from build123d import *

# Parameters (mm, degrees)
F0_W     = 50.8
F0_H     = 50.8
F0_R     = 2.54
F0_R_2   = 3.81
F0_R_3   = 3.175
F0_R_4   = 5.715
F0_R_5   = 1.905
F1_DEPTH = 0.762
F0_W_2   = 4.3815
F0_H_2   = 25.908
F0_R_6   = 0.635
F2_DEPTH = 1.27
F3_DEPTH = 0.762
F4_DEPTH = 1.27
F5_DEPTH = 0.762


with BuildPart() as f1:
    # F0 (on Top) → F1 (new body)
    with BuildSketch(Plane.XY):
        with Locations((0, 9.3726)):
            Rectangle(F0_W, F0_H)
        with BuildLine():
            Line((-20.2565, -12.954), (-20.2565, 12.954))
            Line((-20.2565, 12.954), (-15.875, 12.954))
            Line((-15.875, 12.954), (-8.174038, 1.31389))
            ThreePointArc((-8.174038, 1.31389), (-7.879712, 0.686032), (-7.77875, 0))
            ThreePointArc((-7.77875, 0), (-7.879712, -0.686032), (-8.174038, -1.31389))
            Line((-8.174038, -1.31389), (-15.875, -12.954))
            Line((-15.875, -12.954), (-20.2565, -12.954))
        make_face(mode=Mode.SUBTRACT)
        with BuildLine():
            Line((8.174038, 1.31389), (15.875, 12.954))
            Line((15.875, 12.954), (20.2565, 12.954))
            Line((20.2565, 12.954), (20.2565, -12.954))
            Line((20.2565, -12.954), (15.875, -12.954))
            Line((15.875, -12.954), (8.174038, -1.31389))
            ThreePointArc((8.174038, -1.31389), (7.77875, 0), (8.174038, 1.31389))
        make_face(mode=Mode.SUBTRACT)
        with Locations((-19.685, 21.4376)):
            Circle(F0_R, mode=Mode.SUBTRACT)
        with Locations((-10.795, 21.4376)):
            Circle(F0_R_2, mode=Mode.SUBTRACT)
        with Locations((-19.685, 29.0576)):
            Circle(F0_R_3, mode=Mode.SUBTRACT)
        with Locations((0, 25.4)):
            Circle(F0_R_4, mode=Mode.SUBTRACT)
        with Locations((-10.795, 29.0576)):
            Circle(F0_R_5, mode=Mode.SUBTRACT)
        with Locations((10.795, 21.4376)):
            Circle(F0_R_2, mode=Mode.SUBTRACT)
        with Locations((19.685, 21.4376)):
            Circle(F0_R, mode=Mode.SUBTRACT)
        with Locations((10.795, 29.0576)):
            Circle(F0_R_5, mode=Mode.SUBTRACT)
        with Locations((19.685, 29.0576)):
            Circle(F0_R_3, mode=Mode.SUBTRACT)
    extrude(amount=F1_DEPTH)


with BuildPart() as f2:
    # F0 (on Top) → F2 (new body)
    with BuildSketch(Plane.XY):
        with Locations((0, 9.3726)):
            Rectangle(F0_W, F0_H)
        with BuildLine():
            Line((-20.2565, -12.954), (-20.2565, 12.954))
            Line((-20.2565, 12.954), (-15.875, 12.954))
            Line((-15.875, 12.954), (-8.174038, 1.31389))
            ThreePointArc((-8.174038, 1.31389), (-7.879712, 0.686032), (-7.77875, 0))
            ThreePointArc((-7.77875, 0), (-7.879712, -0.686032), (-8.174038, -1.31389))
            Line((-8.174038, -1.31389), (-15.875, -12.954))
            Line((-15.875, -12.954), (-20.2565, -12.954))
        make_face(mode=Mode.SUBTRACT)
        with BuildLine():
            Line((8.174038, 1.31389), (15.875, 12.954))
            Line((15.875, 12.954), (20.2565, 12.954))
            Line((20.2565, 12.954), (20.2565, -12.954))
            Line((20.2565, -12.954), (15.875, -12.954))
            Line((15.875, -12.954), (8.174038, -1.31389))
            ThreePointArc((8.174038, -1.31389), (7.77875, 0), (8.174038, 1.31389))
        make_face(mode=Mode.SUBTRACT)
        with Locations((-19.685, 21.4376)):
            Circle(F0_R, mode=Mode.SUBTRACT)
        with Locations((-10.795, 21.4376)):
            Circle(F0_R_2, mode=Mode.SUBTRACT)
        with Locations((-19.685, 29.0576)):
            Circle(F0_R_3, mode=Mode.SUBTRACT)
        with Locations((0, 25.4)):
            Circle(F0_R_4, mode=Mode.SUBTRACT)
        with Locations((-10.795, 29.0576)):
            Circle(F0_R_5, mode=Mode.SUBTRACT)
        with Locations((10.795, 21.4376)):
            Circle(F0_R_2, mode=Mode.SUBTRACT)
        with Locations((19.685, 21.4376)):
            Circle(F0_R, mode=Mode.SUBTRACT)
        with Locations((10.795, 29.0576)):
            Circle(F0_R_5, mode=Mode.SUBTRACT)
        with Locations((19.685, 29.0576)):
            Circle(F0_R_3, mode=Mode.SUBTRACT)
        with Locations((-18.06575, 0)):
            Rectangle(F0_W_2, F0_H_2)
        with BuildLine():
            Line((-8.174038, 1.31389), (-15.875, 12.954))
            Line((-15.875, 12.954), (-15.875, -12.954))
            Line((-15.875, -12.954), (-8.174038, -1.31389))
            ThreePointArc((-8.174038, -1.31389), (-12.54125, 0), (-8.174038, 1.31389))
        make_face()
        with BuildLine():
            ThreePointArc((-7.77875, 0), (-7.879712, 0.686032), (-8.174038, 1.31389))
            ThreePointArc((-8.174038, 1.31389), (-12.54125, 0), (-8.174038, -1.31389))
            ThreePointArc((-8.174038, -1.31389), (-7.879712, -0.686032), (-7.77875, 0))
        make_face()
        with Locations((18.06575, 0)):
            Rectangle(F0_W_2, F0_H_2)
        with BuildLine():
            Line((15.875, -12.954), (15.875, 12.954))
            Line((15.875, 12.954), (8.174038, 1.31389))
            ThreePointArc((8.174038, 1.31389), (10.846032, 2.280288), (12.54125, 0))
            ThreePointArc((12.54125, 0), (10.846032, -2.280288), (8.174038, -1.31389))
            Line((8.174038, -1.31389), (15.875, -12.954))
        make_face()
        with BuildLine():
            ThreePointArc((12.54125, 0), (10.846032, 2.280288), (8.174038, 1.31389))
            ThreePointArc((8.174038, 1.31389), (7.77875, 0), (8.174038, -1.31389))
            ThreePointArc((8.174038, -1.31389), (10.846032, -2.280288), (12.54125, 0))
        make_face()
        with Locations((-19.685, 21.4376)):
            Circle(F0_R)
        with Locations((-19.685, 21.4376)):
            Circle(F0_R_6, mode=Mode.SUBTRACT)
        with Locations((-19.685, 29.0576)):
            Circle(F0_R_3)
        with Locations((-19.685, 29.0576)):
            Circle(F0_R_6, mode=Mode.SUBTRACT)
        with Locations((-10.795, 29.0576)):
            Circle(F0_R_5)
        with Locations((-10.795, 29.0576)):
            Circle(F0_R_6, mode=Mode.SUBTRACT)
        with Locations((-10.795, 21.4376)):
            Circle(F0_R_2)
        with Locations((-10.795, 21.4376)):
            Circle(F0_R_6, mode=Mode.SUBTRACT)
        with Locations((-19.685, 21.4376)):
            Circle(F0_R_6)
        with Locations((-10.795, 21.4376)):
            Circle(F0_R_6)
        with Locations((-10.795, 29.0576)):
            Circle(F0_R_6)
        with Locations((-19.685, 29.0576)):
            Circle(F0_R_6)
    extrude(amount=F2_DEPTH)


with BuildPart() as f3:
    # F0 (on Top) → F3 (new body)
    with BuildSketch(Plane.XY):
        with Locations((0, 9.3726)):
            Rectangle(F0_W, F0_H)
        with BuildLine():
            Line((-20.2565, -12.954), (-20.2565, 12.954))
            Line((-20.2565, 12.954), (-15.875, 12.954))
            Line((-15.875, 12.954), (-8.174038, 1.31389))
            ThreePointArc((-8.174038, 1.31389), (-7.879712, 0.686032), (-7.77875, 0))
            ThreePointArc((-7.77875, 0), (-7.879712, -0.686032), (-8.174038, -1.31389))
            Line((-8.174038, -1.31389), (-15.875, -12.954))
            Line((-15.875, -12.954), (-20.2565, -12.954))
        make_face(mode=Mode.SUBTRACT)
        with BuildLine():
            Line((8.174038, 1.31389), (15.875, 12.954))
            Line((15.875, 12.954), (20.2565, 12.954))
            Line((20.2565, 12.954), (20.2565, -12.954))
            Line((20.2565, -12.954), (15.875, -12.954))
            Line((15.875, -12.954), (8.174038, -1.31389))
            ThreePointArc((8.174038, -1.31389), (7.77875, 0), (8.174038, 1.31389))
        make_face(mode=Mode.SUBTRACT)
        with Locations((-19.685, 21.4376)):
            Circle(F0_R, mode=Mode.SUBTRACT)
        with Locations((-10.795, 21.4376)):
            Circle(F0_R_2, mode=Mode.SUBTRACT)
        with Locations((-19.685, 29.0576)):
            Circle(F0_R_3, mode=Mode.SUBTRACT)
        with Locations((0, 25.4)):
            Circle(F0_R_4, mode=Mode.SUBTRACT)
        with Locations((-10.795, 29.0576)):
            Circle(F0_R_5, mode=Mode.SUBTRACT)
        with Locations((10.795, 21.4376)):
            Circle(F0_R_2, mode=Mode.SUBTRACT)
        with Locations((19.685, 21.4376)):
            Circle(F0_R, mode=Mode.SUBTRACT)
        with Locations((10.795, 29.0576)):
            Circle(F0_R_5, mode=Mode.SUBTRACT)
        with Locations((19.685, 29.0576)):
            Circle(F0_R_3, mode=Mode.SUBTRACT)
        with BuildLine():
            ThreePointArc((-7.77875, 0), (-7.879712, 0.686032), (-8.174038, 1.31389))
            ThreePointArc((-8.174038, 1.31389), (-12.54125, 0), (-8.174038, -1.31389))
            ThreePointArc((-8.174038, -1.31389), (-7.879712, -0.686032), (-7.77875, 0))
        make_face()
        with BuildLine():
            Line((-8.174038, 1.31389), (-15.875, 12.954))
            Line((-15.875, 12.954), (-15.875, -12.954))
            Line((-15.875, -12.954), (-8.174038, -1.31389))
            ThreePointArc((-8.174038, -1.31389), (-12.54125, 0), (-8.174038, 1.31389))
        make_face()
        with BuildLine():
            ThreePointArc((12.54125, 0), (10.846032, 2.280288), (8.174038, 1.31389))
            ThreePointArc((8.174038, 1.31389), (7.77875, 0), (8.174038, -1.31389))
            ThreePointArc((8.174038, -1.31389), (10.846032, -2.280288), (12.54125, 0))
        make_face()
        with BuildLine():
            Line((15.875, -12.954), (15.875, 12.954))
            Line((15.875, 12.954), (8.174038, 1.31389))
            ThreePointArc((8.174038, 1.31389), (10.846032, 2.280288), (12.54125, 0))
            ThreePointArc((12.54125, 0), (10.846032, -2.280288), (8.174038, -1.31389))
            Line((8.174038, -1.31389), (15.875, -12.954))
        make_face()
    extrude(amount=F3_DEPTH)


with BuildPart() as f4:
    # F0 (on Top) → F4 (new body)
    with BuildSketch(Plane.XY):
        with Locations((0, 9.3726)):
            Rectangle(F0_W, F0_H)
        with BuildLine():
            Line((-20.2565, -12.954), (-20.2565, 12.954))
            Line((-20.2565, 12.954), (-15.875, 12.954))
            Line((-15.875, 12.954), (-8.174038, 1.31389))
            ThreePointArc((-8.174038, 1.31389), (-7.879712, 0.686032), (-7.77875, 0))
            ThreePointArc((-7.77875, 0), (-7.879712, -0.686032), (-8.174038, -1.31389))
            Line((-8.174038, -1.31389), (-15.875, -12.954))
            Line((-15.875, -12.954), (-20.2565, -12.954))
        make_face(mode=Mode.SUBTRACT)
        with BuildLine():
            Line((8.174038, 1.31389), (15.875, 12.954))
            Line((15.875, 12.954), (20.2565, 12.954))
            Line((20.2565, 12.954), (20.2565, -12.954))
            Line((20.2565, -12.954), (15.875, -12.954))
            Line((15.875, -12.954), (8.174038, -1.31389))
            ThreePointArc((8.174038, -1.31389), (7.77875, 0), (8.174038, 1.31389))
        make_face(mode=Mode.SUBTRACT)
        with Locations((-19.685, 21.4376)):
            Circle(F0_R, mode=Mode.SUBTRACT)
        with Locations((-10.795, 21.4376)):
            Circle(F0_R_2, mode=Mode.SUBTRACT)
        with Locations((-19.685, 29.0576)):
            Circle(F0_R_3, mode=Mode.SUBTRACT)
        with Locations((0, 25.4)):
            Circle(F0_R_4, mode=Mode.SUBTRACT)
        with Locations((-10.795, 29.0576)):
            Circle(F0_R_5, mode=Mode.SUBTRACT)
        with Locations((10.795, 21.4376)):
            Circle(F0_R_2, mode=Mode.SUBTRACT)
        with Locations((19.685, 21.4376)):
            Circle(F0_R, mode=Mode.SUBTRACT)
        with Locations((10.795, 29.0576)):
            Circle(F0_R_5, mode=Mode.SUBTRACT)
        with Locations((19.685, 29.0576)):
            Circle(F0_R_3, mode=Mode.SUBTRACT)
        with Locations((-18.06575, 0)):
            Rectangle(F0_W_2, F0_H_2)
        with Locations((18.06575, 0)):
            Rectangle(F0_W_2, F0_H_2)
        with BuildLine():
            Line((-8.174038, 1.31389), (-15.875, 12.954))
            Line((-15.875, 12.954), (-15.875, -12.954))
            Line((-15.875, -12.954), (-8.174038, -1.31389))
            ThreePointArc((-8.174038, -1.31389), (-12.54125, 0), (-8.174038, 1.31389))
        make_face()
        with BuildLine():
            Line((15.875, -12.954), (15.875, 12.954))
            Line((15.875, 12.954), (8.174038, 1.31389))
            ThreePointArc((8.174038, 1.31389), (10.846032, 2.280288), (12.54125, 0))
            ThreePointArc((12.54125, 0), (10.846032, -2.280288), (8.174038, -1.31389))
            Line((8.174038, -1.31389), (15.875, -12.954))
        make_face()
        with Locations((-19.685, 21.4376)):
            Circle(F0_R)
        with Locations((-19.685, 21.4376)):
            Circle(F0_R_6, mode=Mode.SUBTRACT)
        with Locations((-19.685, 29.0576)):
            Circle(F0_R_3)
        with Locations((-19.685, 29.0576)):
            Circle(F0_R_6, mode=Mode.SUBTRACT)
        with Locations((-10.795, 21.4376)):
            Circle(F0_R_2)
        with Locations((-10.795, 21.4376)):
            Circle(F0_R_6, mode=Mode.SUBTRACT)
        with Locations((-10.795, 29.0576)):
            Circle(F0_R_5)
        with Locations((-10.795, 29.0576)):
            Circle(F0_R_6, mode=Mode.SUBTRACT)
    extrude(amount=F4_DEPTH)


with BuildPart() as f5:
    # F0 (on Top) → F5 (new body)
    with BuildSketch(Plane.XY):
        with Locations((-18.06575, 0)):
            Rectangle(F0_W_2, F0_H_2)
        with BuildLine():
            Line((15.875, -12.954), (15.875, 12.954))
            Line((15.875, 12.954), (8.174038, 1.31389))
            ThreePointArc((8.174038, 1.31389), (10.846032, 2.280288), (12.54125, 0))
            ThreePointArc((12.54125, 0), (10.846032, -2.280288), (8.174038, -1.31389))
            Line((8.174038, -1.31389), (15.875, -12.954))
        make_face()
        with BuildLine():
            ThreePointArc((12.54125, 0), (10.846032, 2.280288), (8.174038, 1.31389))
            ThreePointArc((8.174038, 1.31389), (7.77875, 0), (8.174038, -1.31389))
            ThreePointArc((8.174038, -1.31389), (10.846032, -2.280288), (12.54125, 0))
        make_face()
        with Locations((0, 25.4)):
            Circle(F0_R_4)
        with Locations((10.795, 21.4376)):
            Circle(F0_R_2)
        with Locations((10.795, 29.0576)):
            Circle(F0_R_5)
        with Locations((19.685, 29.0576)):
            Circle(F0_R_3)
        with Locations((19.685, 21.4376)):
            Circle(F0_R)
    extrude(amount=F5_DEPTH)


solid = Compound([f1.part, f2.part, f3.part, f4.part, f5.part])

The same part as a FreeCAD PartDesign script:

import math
import FreeCAD as App
import Part
import Sketcher
from FreeCAD import Vector
Q = App.Units.Quantity

doc = App.newDocument("Part")
body = doc.addObject("PartDesign::Body", "Body")

# Sketch on XY plane
sketch1 = body.newObject("Sketcher::SketchObject", "Sketch")
sketch1.AttachmentSupport = (doc.getObject("XY_Plane"), [""])
sketch1.MapMode = "FlatFace"
sketch1.addGeometry(Part.LineSegment(Vector(-25.4, 34.8, 0), Vector(-25.4, -16, 0)), False)
sketch1.addGeometry(Part.LineSegment(Vector(-25.4, -16, 0), Vector(25.4, -16, 0)), False)
sketch1.addGeometry(Part.LineSegment(Vector(25.4, -16, 0), Vector(25.4, 34.8, 0)), False)
sketch1.addGeometry(Part.LineSegment(Vector(25.4, 34.8, 0), Vector(-25.4, 34.8, 0)), False)
sketch1.addGeometry(Part.LineSegment(Vector(-15.9, -13, 0), Vector(-20.3, -13, 0)), False)
sketch1.addGeometry(Part.LineSegment(Vector(-20.3, -13, 0), Vector(-20.3, 13, 0)), False)
sketch1.addGeometry(Part.LineSegment(Vector(-20.3, 13, 0), Vector(-15.9, 13, 0)), False)
sketch1.addGeometry(Part.LineSegment(Vector(-15.9, 13, 0), Vector(-8.2, 1.3, 0)), False)
sketch1.addGeometry(Part.ArcOfCircle(Part.Circle(Vector(-10.2, 0, 0), Vector(0, 0, 1), 2.4), math.radians(0), math.radians(33)), False)
sketch1.addGeometry(Part.ArcOfCircle(Part.Circle(Vector(-10.2, 0, 0), Vector(0, 0, 1), 2.4), math.radians(-33), math.radians(0)), False)
sketch1.addGeometry(Part.LineSegment(Vector(-8.2, -1.3, 0), Vector(-15.9, -13, 0)), False)
sketch1.addGeometry(Part.ArcOfCircle(Part.Circle(Vector(10.2, 0, 0), Vector(0, 0, 1), 2.4), math.radians(147), math.radians(213)), False)
sketch1.addGeometry(Part.LineSegment(Vector(8.2, 1.3, 0), Vector(15.9, 13, 0)), False)
sketch1.addGeometry(Part.LineSegment(Vector(15.9, 13, 0), Vector(20.3, 13, 0)), False)
sketch1.addGeometry(Part.LineSegment(Vector(20.3, 13, 0), Vector(20.3, -13, 0)), False)
sketch1.addGeometry(Part.LineSegment(Vector(20.3, -13, 0), Vector(15.9, -13, 0)), False)
sketch1.addGeometry(Part.LineSegment(Vector(15.9, -13, 0), Vector(8.2, -1.3, 0)), False)
sketch1.addGeometry(Part.Circle(Vector(-19.7, 21.4, 0), Vector(0, 0, 1), 2.5), False)
sketch1.addGeometry(Part.Circle(Vector(-19.7, 29.1, 0), Vector(0, 0, 1), 3.2), False)
sketch1.addGeometry(Part.Circle(Vector(-10.8, 21.4, 0), Vector(0, 0, 1), 3.8), False)
sketch1.addGeometry(Part.Circle(Vector(-10.8, 29.1, 0), Vector(0, 0, 1), 1.9), False)
sketch1.addGeometry(Part.Circle(Vector(0, 25.4, 0), Vector(0, 0, 1), 5.7), False)
sketch1.addGeometry(Part.Circle(Vector(10.8, 21.4, 0), Vector(0, 0, 1), 3.8), False)
sketch1.addGeometry(Part.Circle(Vector(10.8, 29.1, 0), Vector(0, 0, 1), 1.9), False)
sketch1.addGeometry(Part.Circle(Vector(19.7, 21.4, 0), Vector(0, 0, 1), 2.5), False)
sketch1.addGeometry(Part.Circle(Vector(19.7, 29.1, 0), Vector(0, 0, 1), 3.2), False)
sketch1.addConstraint(Sketcher.Constraint("Coincident", 0, 2, 1, 1))
sketch1.addConstraint(Sketcher.Constraint("Coincident", 1, 2, 2, 1))
sketch1.addConstraint(Sketcher.Constraint("Coincident", 2, 2, 3, 1))
sketch1.addConstraint(Sketcher.Constraint("Coincident", 3, 2, 0, 1))
sketch1.addConstraint(Sketcher.Constraint("Coincident", 4, 2, 5, 1))
sketch1.addConstraint(Sketcher.Constraint("Coincident", 5, 2, 6, 1))
sketch1.addConstraint(Sketcher.Constraint("Coincident", 6, 2, 7, 1))
sketch1.addConstraint(Sketcher.Constraint("Tangent", 7, 2, 8, 2))
sketch1.addConstraint(Sketcher.Constraint("Tangent", 8, 1, 9, 2))
sketch1.addConstraint(Sketcher.Constraint("Tangent", 9, 1, 10, 1))
sketch1.addConstraint(Sketcher.Constraint("Coincident", 10, 2, 4, 1))
sketch1.addConstraint(Sketcher.Constraint("Tangent", 11, 1, 12, 1))
sketch1.addConstraint(Sketcher.Constraint("Coincident", 12, 2, 13, 1))
sketch1.addConstraint(Sketcher.Constraint("Coincident", 13, 2, 14, 1))
sketch1.addConstraint(Sketcher.Constraint("Coincident", 14, 2, 15, 1))
sketch1.addConstraint(Sketcher.Constraint("Coincident", 15, 2, 16, 1))
sketch1.addConstraint(Sketcher.Constraint("Tangent", 16, 2, 11, 2))
sketch1.addConstraint(Sketcher.Constraint("Vertical", 0))
sketch1.addConstraint(Sketcher.Constraint("Horizontal", 1))
sketch1.addConstraint(Sketcher.Constraint("Vertical", 2))
sketch1.addConstraint(Sketcher.Constraint("Horizontal", 3))
sketch1.addConstraint(Sketcher.Constraint("Horizontal", 4))
sketch1.addConstraint(Sketcher.Constraint("Vertical", 5))
sketch1.addConstraint(Sketcher.Constraint("Horizontal", 6))
sketch1.addConstraint(Sketcher.Constraint("Horizontal", 13))
sketch1.addConstraint(Sketcher.Constraint("Vertical", 14))
sketch1.addConstraint(Sketcher.Constraint("Horizontal", 15))
sketch1.addConstraint(Sketcher.Constraint("Equal", 8, 9))
sketch1.addConstraint(Sketcher.Constraint("Equal", 19, 22))
sketch1.addConstraint(Sketcher.Constraint("Equal", 20, 23))
sketch1.addConstraint(Sketcher.Constraint("Equal", 17, 24))
sketch1.addConstraint(Sketcher.Constraint("Equal", 18, 25))
sketch1.addConstraint(Sketcher.Constraint("Symmetric", 8, 3, 11, 3, -1, 1))
sketch1.addConstraint(Sketcher.Constraint("Symmetric", 9, 1, 11, 1, -1, 1))
sketch1.addConstraint(Sketcher.Constraint("Symmetric", 4, 2, 13, 2, -1, 1))
sketch1.addConstraint(Sketcher.Constraint("Symmetric", 6, 2, 15, 2, -1, 1))
sketch1.addConstraint(Sketcher.Constraint("Symmetric", 19, 3, 22, 3, -2))
sketch1.addConstraint(Sketcher.Constraint("Symmetric", 20, 3, 23, 3, -2))
sketch1.addConstraint(Sketcher.Constraint("Symmetric", 17, 3, 24, 3, -2))
sketch1.addConstraint(Sketcher.Constraint("Symmetric", 18, 3, 25, 3, -2))
sketch1.addConstraint(Sketcher.Constraint("Symmetric", 7, 2, 11, 1, -2))
sketch1.addConstraint(Sketcher.Constraint("PointOnObject", 21, 3, -2))
sketch1.addConstraint(Sketcher.Constraint("PointOnObject", 8, 1, -1))
sketch1.addConstraint(Sketcher.Constraint("Horizontal", 17, 3, 19, 3))
sketch1.addConstraint(Sketcher.Constraint("Horizontal", 18, 3, 20, 3))
sketch1.addConstraint(Sketcher.Constraint("Horizontal", 6, 2, 12, 2))
sketch1.addConstraint(Sketcher.Constraint("Vertical", 17, 3, 18, 3))
sketch1.addConstraint(Sketcher.Constraint("Vertical", 19, 3, 20, 3))
sketch1.addConstraint(Sketcher.Constraint("Equal", 3, 0))
sketch1.addConstraint(Sketcher.Constraint("Diameter", 17, Q("0.2 in")))
sketch1.addConstraint(Sketcher.Constraint("Diameter", 19, Q("0.3 in")))
sketch1.addConstraint(Sketcher.Constraint("Diameter", 18, Q("0.25 in")))
sketch1.addConstraint(Sketcher.Constraint("Diameter", 20, Q("0.15 in")))
sketch1.addConstraint(Sketcher.Constraint("Diameter", 21, Q("0.45 in")))
sketch1.addConstraint(Sketcher.Constraint("DistanceX", 1, 1, 1, 2, Q("2 in")))
sketch1.addConstraint(Sketcher.Constraint("DistanceY", -1, 1, 21, 3, Q("1 in")))
sketch1.addConstraint(Sketcher.Constraint("DistanceX", 0, 2, -1, 1, Q("1 in")))
sketch1.addConstraint(Sketcher.Constraint("Radius", 11, Q("0.09375 in")))
sketch1.addConstraint(Sketcher.Constraint("DistanceY", 5, 1, 5, 2, Q("1.02 in")))
sketch1.addConstraint(Sketcher.Constraint("DistanceX", -1, 1, 11, 3, Q("0.4 in")))
sketch1.addConstraint(Sketcher.Constraint("DistanceY", 17, 3, 18, 3, Q("0.3 in")))
sketch1.addConstraint(Sketcher.Constraint("DistanceX", 19, 3, 24, 3, Q("1.2 in")))
sketch1.addConstraint(Sketcher.Constraint("DistanceX", 6, 2, 19, 3, Q("0.2 in")))
sketch1.addConstraint(Sketcher.Constraint("DistanceX", 17, 3, 19, 3, Q("0.35 in")))
sketch1.addConstraint(Sketcher.Constraint("DistanceX", 4, 2, 4, 1, Q("0.1725 in")))
sketch1.addConstraint(Sketcher.Constraint("DistanceY", -1, 1, 17, 3, Q("0.844 in")))
sketch1.addConstraint(Sketcher.Constraint("DistanceY", 0, 2, -1, 1, Q("0.631 in")))
pad1 = body.newObject("PartDesign::Pad", "Pad")
pad1.Profile = sketch1
pad1.Length = Q("0.03 in")
body2 = doc.addObject("PartDesign::Body", "Body001")

# Sketch on XY plane
sketch2 = body2.newObject("Sketcher::SketchObject", "Sketch001")
sketch2.AttachmentSupport = (doc.getObject("XY_Plane001"), [""])
sketch2.MapMode = "FlatFace"
sketch2.addGeometry(Part.LineSegment(Vector(-25.4, 34.8, 0), Vector(-25.4, -16, 0)), False)
sketch2.addGeometry(Part.LineSegment(Vector(-25.4, -16, 0), Vector(25.4, -16, 0)), False)
sketch2.addGeometry(Part.LineSegment(Vector(25.4, -16, 0), Vector(25.4, 34.8, 0)), False)
sketch2.addGeometry(Part.LineSegment(Vector(25.4, 34.8, 0), Vector(-25.4, 34.8, 0)), False)
sketch2.addGeometry(Part.Circle(Vector(10.8, 21.4, 0), Vector(0, 0, 1), 3.8), False)
sketch2.addGeometry(Part.Circle(Vector(19.7, 21.4, 0), Vector(0, 0, 1), 2.5), False)
sketch2.addGeometry(Part.Circle(Vector(0, 25.4, 0), Vector(0, 0, 1), 5.7), False)
sketch2.addGeometry(Part.Circle(Vector(10.8, 29.1, 0), Vector(0, 0, 1), 1.9), False)
sketch2.addGeometry(Part.Circle(Vector(19.7, 29.1, 0), Vector(0, 0, 1), 3.2), False)
sketch2.addConstraint(Sketcher.Constraint("Coincident", 0, 2, 1, 1))
sketch2.addConstraint(Sketcher.Constraint("Coincident", 1, 2, 2, 1))
sketch2.addConstraint(Sketcher.Constraint("Coincident", 2, 2, 3, 1))
sketch2.addConstraint(Sketcher.Constraint("Coincident", 3, 2, 0, 1))
sketch2.addConstraint(Sketcher.Constraint("Vertical", 0))
sketch2.addConstraint(Sketcher.Constraint("Horizontal", 1))
sketch2.addConstraint(Sketcher.Constraint("Vertical", 2))
sketch2.addConstraint(Sketcher.Constraint("Horizontal", 3))
sketch2.addConstraint(Sketcher.Constraint("PointOnObject", 6, 3, -2))
sketch2.addConstraint(Sketcher.Constraint("Horizontal", 4, 3, 5, 3))
sketch2.addConstraint(Sketcher.Constraint("Horizontal", 7, 3, 8, 3))
sketch2.addConstraint(Sketcher.Constraint("Vertical", 4, 3, 7, 3))
sketch2.addConstraint(Sketcher.Constraint("Vertical", 5, 3, 8, 3))
sketch2.addConstraint(Sketcher.Constraint("Equal", 3, 0))
sketch2.addConstraint(Sketcher.Constraint("Diameter", 4, Q("0.3 in")))
sketch2.addConstraint(Sketcher.Constraint("Diameter", 5, Q("0.2 in")))
sketch2.addConstraint(Sketcher.Constraint("Diameter", 6, Q("0.45 in")))
sketch2.addConstraint(Sketcher.Constraint("Diameter", 7, Q("0.15 in")))
sketch2.addConstraint(Sketcher.Constraint("Diameter", 8, Q("0.25 in")))
sketch2.addConstraint(Sketcher.Constraint("DistanceX", 1, 1, 1, 2, Q("2 in")))
sketch2.addConstraint(Sketcher.Constraint("DistanceY", -1, 1, 6, 3, Q("1 in")))
sketch2.addConstraint(Sketcher.Constraint("DistanceX", 0, 2, -1, 1, Q("1 in")))
sketch2.addConstraint(Sketcher.Constraint("DistanceY", 4, 3, 7, 3, Q("0.3 in")))
sketch2.addConstraint(Sketcher.Constraint("DistanceX", 4, 3, 5, 3, Q("0.35 in")))
sketch2.addConstraint(Sketcher.Constraint("DistanceX", -1, 1, 4, 3, Q("0.425 in")))
sketch2.addConstraint(Sketcher.Constraint("DistanceY", -1, 1, 4, 3, Q("0.844 in")))
sketch2.addConstraint(Sketcher.Constraint("DistanceY", 0, 2, -1, 1, Q("0.631 in")))
pad2 = body2.newObject("PartDesign::Pad", "Pad001")
pad2.Profile = sketch2
pad2.Length = Q("0.05 in")
body3 = doc.addObject("PartDesign::Body", "Body002")

# Sketch on XY plane
sketch3 = body3.newObject("Sketcher::SketchObject", "Sketch002")
sketch3.AttachmentSupport = (doc.getObject("XY_Plane002"), [""])
sketch3.MapMode = "FlatFace"
sketch3.addGeometry(Part.LineSegment(Vector(-25.4, 34.8, 0), Vector(-25.4, -16, 0)), False)
sketch3.addGeometry(Part.LineSegment(Vector(-25.4, -16, 0), Vector(25.4, -16, 0)), False)
sketch3.addGeometry(Part.LineSegment(Vector(25.4, -16, 0), Vector(25.4, 34.8, 0)), False)
sketch3.addGeometry(Part.LineSegment(Vector(25.4, 34.8, 0), Vector(-25.4, 34.8, 0)), False)
sketch3.addGeometry(Part.LineSegment(Vector(-15.9, -13, 0), Vector(-20.3, -13, 0)), False)
sketch3.addGeometry(Part.LineSegment(Vector(-20.3, -13, 0), Vector(-20.3, 13, 0)), False)
sketch3.addGeometry(Part.LineSegment(Vector(-20.3, 13, 0), Vector(-15.9, 13, 0)), False)
sketch3.addGeometry(Part.LineSegment(Vector(-15.9, 13, 0), Vector(-15.9, -13, 0)), False)
sketch3.addGeometry(Part.LineSegment(Vector(15.9, 13, 0), Vector(20.3, 13, 0)), False)
sketch3.addGeometry(Part.LineSegment(Vector(20.3, 13, 0), Vector(20.3, -13, 0)), False)
sketch3.addGeometry(Part.LineSegment(Vector(20.3, -13, 0), Vector(15.9, -13, 0)), False)
sketch3.addGeometry(Part.LineSegment(Vector(15.9, -13, 0), Vector(15.9, 13, 0)), False)
sketch3.addGeometry(Part.Circle(Vector(-19.7, 21.4, 0), Vector(0, 0, 1), 2.5), False)
sketch3.addGeometry(Part.Circle(Vector(-19.7, 29.1, 0), Vector(0, 0, 1), 3.2), False)
sketch3.addGeometry(Part.Circle(Vector(-10.8, 21.4, 0), Vector(0, 0, 1), 3.8), False)
sketch3.addGeometry(Part.Circle(Vector(-10.8, 29.1, 0), Vector(0, 0, 1), 1.9), False)
sketch3.addGeometry(Part.Circle(Vector(0, 25.4, 0), Vector(0, 0, 1), 5.7), False)
sketch3.addGeometry(Part.Circle(Vector(10.8, 21.4, 0), Vector(0, 0, 1), 3.8), False)
sketch3.addGeometry(Part.Circle(Vector(10.8, 29.1, 0), Vector(0, 0, 1), 1.9), False)
sketch3.addGeometry(Part.Circle(Vector(19.7, 21.4, 0), Vector(0, 0, 1), 2.5), False)
sketch3.addGeometry(Part.Circle(Vector(19.7, 29.1, 0), Vector(0, 0, 1), 3.2), False)
sketch3.addConstraint(Sketcher.Constraint("Coincident", 0, 2, 1, 1))
sketch3.addConstraint(Sketcher.Constraint("Coincident", 1, 2, 2, 1))
sketch3.addConstraint(Sketcher.Constraint("Coincident", 2, 2, 3, 1))
sketch3.addConstraint(Sketcher.Constraint("Coincident", 3, 2, 0, 1))
sketch3.addConstraint(Sketcher.Constraint("Coincident", 4, 2, 5, 1))
sketch3.addConstraint(Sketcher.Constraint("Coincident", 5, 2, 6, 1))
sketch3.addConstraint(Sketcher.Constraint("Coincident", 6, 2, 7, 1))
sketch3.addConstraint(Sketcher.Constraint("Coincident", 7, 2, 4, 1))
sketch3.addConstraint(Sketcher.Constraint("Coincident", 8, 2, 9, 1))
sketch3.addConstraint(Sketcher.Constraint("Coincident", 9, 2, 10, 1))
sketch3.addConstraint(Sketcher.Constraint("Coincident", 10, 2, 11, 1))
sketch3.addConstraint(Sketcher.Constraint("Coincident", 11, 2, 8, 1))
sketch3.addConstraint(Sketcher.Constraint("Vertical", 0))
sketch3.addConstraint(Sketcher.Constraint("Horizontal", 1))
sketch3.addConstraint(Sketcher.Constraint("Vertical", 2))
sketch3.addConstraint(Sketcher.Constraint("Horizontal", 3))
sketch3.addConstraint(Sketcher.Constraint("Horizontal", 4))
sketch3.addConstraint(Sketcher.Constraint("Vertical", 5))
sketch3.addConstraint(Sketcher.Constraint("Horizontal", 6))
sketch3.addConstraint(Sketcher.Constraint("Vertical", 7))
sketch3.addConstraint(Sketcher.Constraint("Horizontal", 8))
sketch3.addConstraint(Sketcher.Constraint("Vertical", 9))
sketch3.addConstraint(Sketcher.Constraint("Horizontal", 10))
sketch3.addConstraint(Sketcher.Constraint("Vertical", 11))
sketch3.addConstraint(Sketcher.Constraint("Equal", 14, 17))
sketch3.addConstraint(Sketcher.Constraint("Equal", 15, 18))
sketch3.addConstraint(Sketcher.Constraint("Equal", 12, 19))
sketch3.addConstraint(Sketcher.Constraint("Equal", 13, 20))
sketch3.addConstraint(Sketcher.Constraint("Symmetric", 4, 2, 8, 2, -1, 1))
sketch3.addConstraint(Sketcher.Constraint("Symmetric", 6, 2, 10, 2, -1, 1))
sketch3.addConstraint(Sketcher.Constraint("Symmetric", 14, 3, 17, 3, -2))
sketch3.addConstraint(Sketcher.Constraint("Symmetric", 15, 3, 18, 3, -2))
sketch3.addConstraint(Sketcher.Constraint("Symmetric", 12, 3, 19, 3, -2))
sketch3.addConstraint(Sketcher.Constraint("Symmetric", 13, 3, 20, 3, -2))
sketch3.addConstraint(Sketcher.Constraint("PointOnObject", 16, 3, -2))
sketch3.addConstraint(Sketcher.Constraint("Horizontal", 12, 3, 14, 3))
sketch3.addConstraint(Sketcher.Constraint("Horizontal", 13, 3, 15, 3))
sketch3.addConstraint(Sketcher.Constraint("Horizontal", 6, 2, 8, 2))
sketch3.addConstraint(Sketcher.Constraint("Vertical", 12, 3, 13, 3))
sketch3.addConstraint(Sketcher.Constraint("Vertical", 14, 3, 15, 3))
sketch3.addConstraint(Sketcher.Constraint("Equal", 3, 0))
sketch3.addConstraint(Sketcher.Constraint("Diameter", 12, Q("0.2 in")))
sketch3.addConstraint(Sketcher.Constraint("Diameter", 14, Q("0.3 in")))
sketch3.addConstraint(Sketcher.Constraint("Diameter", 13, Q("0.25 in")))
sketch3.addConstraint(Sketcher.Constraint("Diameter", 15, Q("0.15 in")))
sketch3.addConstraint(Sketcher.Constraint("Diameter", 16, Q("0.45 in")))
sketch3.addConstraint(Sketcher.Constraint("DistanceX", 1, 1, 1, 2, Q("2 in")))
sketch3.addConstraint(Sketcher.Constraint("DistanceY", -1, 1, 16, 3, Q("1 in")))
sketch3.addConstraint(Sketcher.Constraint("DistanceX", 0, 2, -1, 1, Q("1 in")))
sketch3.addConstraint(Sketcher.Constraint("DistanceY", 5, 1, 5, 2, Q("1.02 in")))
sketch3.addConstraint(Sketcher.Constraint("DistanceY", 12, 3, 13, 3, Q("0.3 in")))
sketch3.addConstraint(Sketcher.Constraint("DistanceX", 12, 3, 17, 3, Q("1.2 in")))
sketch3.addConstraint(Sketcher.Constraint("DistanceX", 6, 2, 14, 3, Q("0.2 in")))
sketch3.addConstraint(Sketcher.Constraint("DistanceX", 12, 3, 14, 3, Q("0.35 in")))
sketch3.addConstraint(Sketcher.Constraint("DistanceX", 4, 2, 4, 1, Q("0.1725 in")))
sketch3.addConstraint(Sketcher.Constraint("DistanceY", -1, 1, 12, 3, Q("0.844 in")))
sketch3.addConstraint(Sketcher.Constraint("DistanceY", 0, 2, -1, 1, Q("0.631 in")))
pad3 = body3.newObject("PartDesign::Pad", "Pad002")
pad3.Profile = sketch3
pad3.Length = Q("0.03 in")
body4 = doc.addObject("PartDesign::Body", "Body003")

# Sketch on XY plane
sketch4 = body4.newObject("Sketcher::SketchObject", "Sketch003")
sketch4.AttachmentSupport = (doc.getObject("XY_Plane003"), [""])
sketch4.MapMode = "FlatFace"
sketch4.addGeometry(Part.LineSegment(Vector(-25.4, 34.8, 0), Vector(-25.4, -16, 0)), False)
sketch4.addGeometry(Part.LineSegment(Vector(-25.4, -16, 0), Vector(25.4, -16, 0)), False)
sketch4.addGeometry(Part.LineSegment(Vector(25.4, -16, 0), Vector(25.4, 34.8, 0)), False)
sketch4.addGeometry(Part.LineSegment(Vector(25.4, 34.8, 0), Vector(-25.4, 34.8, 0)), False)
sketch4.addGeometry(Part.ArcOfCircle(Part.Circle(Vector(-10.2, 0, 0), Vector(0, 0, 1), 2.4), math.radians(0), math.radians(33)), False)
sketch4.addGeometry(Part.ArcOfCircle(Part.Circle(Vector(-10.2, 0, 0), Vector(0, 0, 1), 2.4), math.radians(-33), math.radians(0)), False)
sketch4.addGeometry(Part.ArcOfCircle(Part.Circle(Vector(-10.2, 0, 0), Vector(0, 0, 1), 2.4), math.radians(33), math.radians(327)), False)
sketch4.addGeometry(Part.ArcOfCircle(Part.Circle(Vector(10.2, 0, 0), Vector(0, 0, 1), 2.4), math.radians(147), math.radians(213)), False)
sketch4.addGeometry(Part.ArcOfCircle(Part.Circle(Vector(10.2, 0, 0), Vector(0, 0, 1), 2.4), math.radians(0), math.radians(147)), False)
sketch4.addGeometry(Part.ArcOfCircle(Part.Circle(Vector(10.2, 0, 0), Vector(0, 0, 1), 2.4), math.radians(-147), math.radians(0)), False)
sketch4.addGeometry(Part.Circle(Vector(-19.7, 21.4, 0), Vector(0, 0, 1), 0.6), False)
sketch4.addGeometry(Part.Circle(Vector(-10.8, 21.4, 0), Vector(0, 0, 1), 0.6), False)
sketch4.addGeometry(Part.Circle(Vector(-19.7, 29.1, 0), Vector(0, 0, 1), 0.6), False)
sketch4.addGeometry(Part.Circle(Vector(-10.8, 29.1, 0), Vector(0, 0, 1), 0.6), False)
sketch4.addGeometry(Part.Circle(Vector(0, 25.4, 0), Vector(0, 0, 1), 5.7), False)
sketch4.addGeometry(Part.Circle(Vector(10.8, 21.4, 0), Vector(0, 0, 1), 3.8), False)
sketch4.addGeometry(Part.Circle(Vector(19.7, 21.4, 0), Vector(0, 0, 1), 2.5), False)
sketch4.addGeometry(Part.Circle(Vector(10.8, 29.1, 0), Vector(0, 0, 1), 1.9), False)
sketch4.addGeometry(Part.Circle(Vector(19.7, 29.1, 0), Vector(0, 0, 1), 3.2), False)
sketch4.addConstraint(Sketcher.Constraint("Coincident", 0, 2, 1, 1))
sketch4.addConstraint(Sketcher.Constraint("Coincident", 1, 2, 2, 1))
sketch4.addConstraint(Sketcher.Constraint("Coincident", 2, 2, 3, 1))
sketch4.addConstraint(Sketcher.Constraint("Coincident", 3, 2, 0, 1))
sketch4.addConstraint(Sketcher.Constraint("Tangent", 4, 1, 5, 2))
sketch4.addConstraint(Sketcher.Constraint("Tangent", 5, 1, 6, 2))
sketch4.addConstraint(Sketcher.Constraint("Tangent", 6, 1, 4, 2))
sketch4.addConstraint(Sketcher.Constraint("Tangent", 7, 1, 8, 2))
sketch4.addConstraint(Sketcher.Constraint("Tangent", 8, 1, 9, 2))
sketch4.addConstraint(Sketcher.Constraint("Tangent", 9, 1, 7, 2))
sketch4.addConstraint(Sketcher.Constraint("Vertical", 0))
sketch4.addConstraint(Sketcher.Constraint("Horizontal", 1))
sketch4.addConstraint(Sketcher.Constraint("Vertical", 2))
sketch4.addConstraint(Sketcher.Constraint("Horizontal", 3))
sketch4.addConstraint(Sketcher.Constraint("Equal", 6, 7))
sketch4.addConstraint(Sketcher.Constraint("Equal", 10, 11))
sketch4.addConstraint(Sketcher.Constraint("Equal", 11, 12))
sketch4.addConstraint(Sketcher.Constraint("Equal", 12, 13))
sketch4.addConstraint(Sketcher.Constraint("Symmetric", 4, 3, 7, 3, -1, 1))
sketch4.addConstraint(Sketcher.Constraint("Symmetric", 11, 3, 15, 3, -2))
sketch4.addConstraint(Sketcher.Constraint("Symmetric", 10, 3, 16, 3, -2))
sketch4.addConstraint(Sketcher.Constraint("Symmetric", 13, 3, 17, 3, -2))
sketch4.addConstraint(Sketcher.Constraint("Symmetric", 12, 3, 18, 3, -2))
sketch4.addConstraint(Sketcher.Constraint("Symmetric", 6, 1, 7, 1, -2))
sketch4.addConstraint(Sketcher.Constraint("PointOnObject", 14, 3, -2))
sketch4.addConstraint(Sketcher.Constraint("PointOnObject", 4, 1, -1))
sketch4.addConstraint(Sketcher.Constraint("PointOnObject", 8, 1, -1))
sketch4.addConstraint(Sketcher.Constraint("Horizontal", 10, 3, 11, 3))
sketch4.addConstraint(Sketcher.Constraint("Horizontal", 12, 3, 13, 3))
sketch4.addConstraint(Sketcher.Constraint("Horizontal", 5, 1, 9, 1))
sketch4.addConstraint(Sketcher.Constraint("Vertical", 10, 3, 12, 3))
sketch4.addConstraint(Sketcher.Constraint("Vertical", 11, 3, 13, 3))
sketch4.addConstraint(Sketcher.Constraint("Vertical", 5, 1, 6, 1))
sketch4.addConstraint(Sketcher.Constraint("Equal", 3, 0))
sketch4.addConstraint(Sketcher.Constraint("Diameter", 15, Q("0.3 in")))
sketch4.addConstraint(Sketcher.Constraint("Diameter", 16, Q("0.2 in")))
sketch4.addConstraint(Sketcher.Constraint("Diameter", 10, Q("0.05 in")))
sketch4.addConstraint(Sketcher.Constraint("Diameter", 14, Q("0.45 in")))
sketch4.addConstraint(Sketcher.Constraint("Diameter", 17, Q("0.15 in")))
sketch4.addConstraint(Sketcher.Constraint("Diameter", 18, Q("0.25 in")))
sketch4.addConstraint(Sketcher.Constraint("DistanceX", 1, 1, 1, 2, Q("2 in")))
sketch4.addConstraint(Sketcher.Constraint("DistanceY", -1, 1, 14, 3, Q("1 in")))
sketch4.addConstraint(Sketcher.Constraint("DistanceX", 0, 2, -1, 1, Q("1 in")))
sketch4.addConstraint(Sketcher.Constraint("Radius", 6, Q("0.09375 in")))
sketch4.addConstraint(Sketcher.Constraint("DistanceX", 6, 3, -1, 1, Q("0.4 in")))
sketch4.addConstraint(Sketcher.Constraint("DistanceY", 10, 3, 12, 3, Q("0.3 in")))
sketch4.addConstraint(Sketcher.Constraint("DistanceX", 13, 3, 18, 3, Q("1.2 in")))
sketch4.addConstraint(Sketcher.Constraint("DistanceX", 10, 3, 11, 3, Q("0.35 in")))
sketch4.addConstraint(Sketcher.Constraint("DistanceY", -1, 1, 10, 3, Q("0.844 in")))
sketch4.addConstraint(Sketcher.Constraint("DistanceY", 0, 2, -1, 1, Q("0.631 in")))
sketch4.addConstraint(Sketcher.Constraint("DistanceY", 5, 1, -1, 1, Q("1.31389 mm")))
pad4 = body4.newObject("PartDesign::Pad", "Pad003")
pad4.Profile = sketch4
pad4.Length = Q("0.05 in")
body5 = doc.addObject("PartDesign::Body", "Body004")
body5.AllowCompound = True

# Sketch on XY plane
sketch5 = body5.newObject("Sketcher::SketchObject", "Sketch004")
sketch5.AttachmentSupport = (doc.getObject("XY_Plane004"), [""])
sketch5.MapMode = "FlatFace"
sketch5.addGeometry(Part.LineSegment(Vector(-20.3, 13, 0), Vector(-20.3, -13, 0)), False)
sketch5.addGeometry(Part.LineSegment(Vector(-20.3, -13, 0), Vector(-15.9, -13, 0)), False)
sketch5.addGeometry(Part.LineSegment(Vector(-15.9, -13, 0), Vector(-15.9, 13, 0)), False)
sketch5.addGeometry(Part.LineSegment(Vector(-15.9, 13, 0), Vector(-20.3, 13, 0)), False)
sketch5.addGeometry(Part.LineSegment(Vector(15.9, -13, 0), Vector(15.9, 13, 0)), False)
sketch5.addGeometry(Part.LineSegment(Vector(15.9, 13, 0), Vector(8.2, 1.3, 0)), False)
sketch5.addGeometry(Part.ArcOfCircle(Part.Circle(Vector(10.2, 0, 0), Vector(0, 0, 1), 2.4), math.radians(147), math.radians(213)), False)
sketch5.addGeometry(Part.LineSegment(Vector(8.2, -1.3, 0), Vector(15.9, -13, 0)), False)
sketch5.addGeometry(Part.Circle(Vector(0, 25.4, 0), Vector(0, 0, 1), 5.7), False)
sketch5.addGeometry(Part.Circle(Vector(10.8, 21.4, 0), Vector(0, 0, 1), 3.8), False)
sketch5.addGeometry(Part.Circle(Vector(10.8, 29.1, 0), Vector(0, 0, 1), 1.9), False)
sketch5.addGeometry(Part.Circle(Vector(19.7, 29.1, 0), Vector(0, 0, 1), 3.2), False)
sketch5.addGeometry(Part.Circle(Vector(19.7, 21.4, 0), Vector(0, 0, 1), 2.5), False)
sketch5.addConstraint(Sketcher.Constraint("Coincident", 0, 2, 1, 1))
sketch5.addConstraint(Sketcher.Constraint("Coincident", 1, 2, 2, 1))
sketch5.addConstraint(Sketcher.Constraint("Coincident", 2, 2, 3, 1))
sketch5.addConstraint(Sketcher.Constraint("Coincident", 3, 2, 0, 1))
sketch5.addConstraint(Sketcher.Constraint("Coincident", 4, 2, 5, 1))
sketch5.addConstraint(Sketcher.Constraint("Tangent", 5, 2, 6, 1))
sketch5.addConstraint(Sketcher.Constraint("Tangent", 6, 2, 7, 1))
sketch5.addConstraint(Sketcher.Constraint("Coincident", 7, 2, 4, 1))
sketch5.addConstraint(Sketcher.Constraint("Vertical", 0))
sketch5.addConstraint(Sketcher.Constraint("Horizontal", 1))
sketch5.addConstraint(Sketcher.Constraint("Vertical", 2))
sketch5.addConstraint(Sketcher.Constraint("Horizontal", 3))
sketch5.addConstraint(Sketcher.Constraint("Vertical", 4))
sketch5.addConstraint(Sketcher.Constraint("Symmetric", 1, 2, 4, 2, -1, 1))
sketch5.addConstraint(Sketcher.Constraint("Symmetric", 5, 2, 6, 2, -1))
sketch5.addConstraint(Sketcher.Constraint("PointOnObject", 8, 3, -2))
sketch5.addConstraint(Sketcher.Constraint("Horizontal", 10, 3, 11, 3))
sketch5.addConstraint(Sketcher.Constraint("Horizontal", 9, 3, 12, 3))
sketch5.addConstraint(Sketcher.Constraint("Horizontal", 3, 2, 4, 2))
sketch5.addConstraint(Sketcher.Constraint("Vertical", 9, 3, 10, 3))
sketch5.addConstraint(Sketcher.Constraint("Vertical", 11, 3, 12, 3))
sketch5.addConstraint(Sketcher.Constraint("Diameter", 9, Q("0.3 in")))
sketch5.addConstraint(Sketcher.Constraint("Diameter", 12, Q("0.2 in")))
sketch5.addConstraint(Sketcher.Constraint("Diameter", 8, Q("0.45 in")))
sketch5.addConstraint(Sketcher.Constraint("Diameter", 10, Q("0.15 in")))
sketch5.addConstraint(Sketcher.Constraint("Diameter", 11, Q("0.25 in")))
sketch5.addConstraint(Sketcher.Constraint("DistanceY", -1, 1, 8, 3, Q("1 in")))
sketch5.addConstraint(Sketcher.Constraint("Radius", 6, Q("0.09375 in")))
sketch5.addConstraint(Sketcher.Constraint("DistanceY", 0, 2, 0, 1, Q("1.02 in")))
sketch5.addConstraint(Sketcher.Constraint("DistanceX", -1, 1, 6, 3, Q("0.4 in")))
sketch5.addConstraint(Sketcher.Constraint("DistanceY", 9, 3, 10, 3, Q("0.3 in")))
sketch5.addConstraint(Sketcher.Constraint("DistanceX", 1, 2, 12, 3, Q("1.4 in")))
sketch5.addConstraint(Sketcher.Constraint("DistanceX", 9, 3, 4, 2, Q("0.2 in")))
sketch5.addConstraint(Sketcher.Constraint("DistanceX", 10, 3, 11, 3, Q("0.35 in")))
sketch5.addConstraint(Sketcher.Constraint("DistanceX", 1, 1, 1, 2, Q("0.1725 in")))
sketch5.addConstraint(Sketcher.Constraint("DistanceY", -1, 1, 9, 3, Q("0.844 in")))
pad5 = body5.newObject("PartDesign::Pad", "Pad004")
pad5.Profile = sketch5
pad5.Length = Q("0.03 in")

doc.recompute()
